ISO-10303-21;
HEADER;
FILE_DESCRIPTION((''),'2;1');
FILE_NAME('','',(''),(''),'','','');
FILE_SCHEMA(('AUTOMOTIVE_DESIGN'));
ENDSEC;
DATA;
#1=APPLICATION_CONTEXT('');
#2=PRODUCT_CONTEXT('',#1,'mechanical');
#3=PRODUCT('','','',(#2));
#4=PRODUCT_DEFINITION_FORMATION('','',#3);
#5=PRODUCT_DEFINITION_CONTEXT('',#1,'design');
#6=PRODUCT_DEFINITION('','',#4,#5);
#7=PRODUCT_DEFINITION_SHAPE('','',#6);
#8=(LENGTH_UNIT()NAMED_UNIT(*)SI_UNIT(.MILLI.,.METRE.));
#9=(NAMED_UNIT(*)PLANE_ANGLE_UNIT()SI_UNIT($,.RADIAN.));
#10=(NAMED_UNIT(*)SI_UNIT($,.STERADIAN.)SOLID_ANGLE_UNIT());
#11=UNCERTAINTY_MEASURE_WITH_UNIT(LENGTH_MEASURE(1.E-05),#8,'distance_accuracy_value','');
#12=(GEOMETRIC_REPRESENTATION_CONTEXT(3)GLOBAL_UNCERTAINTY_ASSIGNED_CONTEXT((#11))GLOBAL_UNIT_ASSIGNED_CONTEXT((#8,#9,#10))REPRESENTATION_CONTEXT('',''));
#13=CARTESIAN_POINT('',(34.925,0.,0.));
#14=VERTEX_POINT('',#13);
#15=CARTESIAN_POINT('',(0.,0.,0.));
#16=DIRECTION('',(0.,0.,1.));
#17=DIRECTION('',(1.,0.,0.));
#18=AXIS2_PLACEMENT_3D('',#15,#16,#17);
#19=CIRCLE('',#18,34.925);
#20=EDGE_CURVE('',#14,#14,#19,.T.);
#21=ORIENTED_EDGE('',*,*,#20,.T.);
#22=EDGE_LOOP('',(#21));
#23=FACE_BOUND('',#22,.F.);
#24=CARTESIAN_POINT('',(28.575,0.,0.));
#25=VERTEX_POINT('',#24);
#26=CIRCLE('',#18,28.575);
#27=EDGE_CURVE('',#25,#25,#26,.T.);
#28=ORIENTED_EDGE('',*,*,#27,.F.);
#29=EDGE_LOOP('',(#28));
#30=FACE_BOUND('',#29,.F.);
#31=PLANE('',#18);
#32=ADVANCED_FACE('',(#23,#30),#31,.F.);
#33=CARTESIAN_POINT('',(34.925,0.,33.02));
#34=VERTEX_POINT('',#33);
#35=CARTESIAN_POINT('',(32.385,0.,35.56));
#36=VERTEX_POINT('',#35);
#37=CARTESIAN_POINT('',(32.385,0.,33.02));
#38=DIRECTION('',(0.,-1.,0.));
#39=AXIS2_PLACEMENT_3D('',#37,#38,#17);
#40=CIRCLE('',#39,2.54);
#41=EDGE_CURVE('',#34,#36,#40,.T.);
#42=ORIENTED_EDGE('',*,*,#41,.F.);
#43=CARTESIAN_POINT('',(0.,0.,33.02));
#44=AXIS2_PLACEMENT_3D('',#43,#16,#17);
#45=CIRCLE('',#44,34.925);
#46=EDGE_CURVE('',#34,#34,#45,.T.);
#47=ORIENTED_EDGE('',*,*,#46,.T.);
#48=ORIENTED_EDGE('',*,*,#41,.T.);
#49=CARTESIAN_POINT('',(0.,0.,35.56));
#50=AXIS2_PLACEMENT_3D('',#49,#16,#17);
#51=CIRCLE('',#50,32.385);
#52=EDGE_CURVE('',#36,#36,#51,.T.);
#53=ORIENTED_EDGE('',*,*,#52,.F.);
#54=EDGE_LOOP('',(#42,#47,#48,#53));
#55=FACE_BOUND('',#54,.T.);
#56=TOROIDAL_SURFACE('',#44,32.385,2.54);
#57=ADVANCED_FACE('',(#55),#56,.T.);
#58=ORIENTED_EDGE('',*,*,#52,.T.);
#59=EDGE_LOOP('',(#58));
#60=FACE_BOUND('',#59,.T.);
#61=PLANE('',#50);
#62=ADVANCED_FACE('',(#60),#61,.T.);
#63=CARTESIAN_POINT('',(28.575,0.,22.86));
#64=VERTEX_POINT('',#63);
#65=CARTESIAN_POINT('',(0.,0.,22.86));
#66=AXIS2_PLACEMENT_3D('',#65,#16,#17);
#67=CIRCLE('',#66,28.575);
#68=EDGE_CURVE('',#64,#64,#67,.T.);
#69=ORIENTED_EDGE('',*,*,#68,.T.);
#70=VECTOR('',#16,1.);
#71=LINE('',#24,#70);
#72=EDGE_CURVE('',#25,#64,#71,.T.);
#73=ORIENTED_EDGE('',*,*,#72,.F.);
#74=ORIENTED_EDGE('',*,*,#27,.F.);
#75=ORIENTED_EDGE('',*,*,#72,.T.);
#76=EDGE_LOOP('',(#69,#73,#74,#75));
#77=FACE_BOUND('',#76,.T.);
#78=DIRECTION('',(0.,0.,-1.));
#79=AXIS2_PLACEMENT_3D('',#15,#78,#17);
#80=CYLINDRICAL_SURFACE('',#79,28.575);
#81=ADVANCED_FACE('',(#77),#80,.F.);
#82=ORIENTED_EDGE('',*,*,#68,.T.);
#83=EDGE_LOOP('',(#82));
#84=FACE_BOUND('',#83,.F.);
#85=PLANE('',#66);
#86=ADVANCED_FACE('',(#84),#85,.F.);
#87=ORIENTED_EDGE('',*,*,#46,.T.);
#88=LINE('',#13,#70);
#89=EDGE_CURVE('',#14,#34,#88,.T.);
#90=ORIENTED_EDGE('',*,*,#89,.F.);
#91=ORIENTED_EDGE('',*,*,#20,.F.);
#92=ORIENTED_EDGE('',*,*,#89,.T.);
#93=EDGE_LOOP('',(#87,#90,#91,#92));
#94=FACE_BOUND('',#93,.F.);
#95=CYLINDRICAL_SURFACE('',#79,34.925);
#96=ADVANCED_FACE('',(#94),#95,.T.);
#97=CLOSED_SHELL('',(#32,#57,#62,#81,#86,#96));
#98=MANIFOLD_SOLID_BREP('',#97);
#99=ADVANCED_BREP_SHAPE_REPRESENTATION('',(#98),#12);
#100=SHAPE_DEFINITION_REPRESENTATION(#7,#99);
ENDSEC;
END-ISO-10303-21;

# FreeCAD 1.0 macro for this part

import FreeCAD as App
import Part
import Sketcher
Q = App.Units.Quantity


def edges_at(feature, points):
    """Names of the edges that pass closest to the given points."""
    edges = feature.Shape.Edges
    near = lambda p: min(range(len(edges)), key=lambda i: edges[i].distToShape(Part.Vertex(*p))[0])
    return sorted({f"Edge{near(p) + 1}" for p in points})

doc = App.newDocument("Part")
body = doc.addObject("PartDesign::Body", "Body")

sketch1 = body.newObject("Sketcher::SketchObject", "Sketch")
sketch1.AttachmentSupport = (doc.getObject("XY_Plane"), [""])
sketch1.MapMode = "FlatFace"
sketch1.addGeometry(Part.Circle(App.Vector(0, 0, 0), App.Vector(0, 0, 1), 35), False)
sketch1.addConstraint(Sketcher.Constraint("Coincident", 0, 3, -1, 1))
sketch1.addConstraint(Sketcher.Constraint("Diameter", 0, Q("2.75 in")))
pad1 = body.newObject("PartDesign::Pad", "Pad")
pad1.Profile = sketch1
pad1.Length = Q("1.4 in")
doc.recompute()

fillet = body.newObject("PartDesign::Fillet", "Fillet")
fillet.Base = (pad1, edges_at(pad1, [(-34.925, 0, 35.56)]))
fillet.Radius = Q("0.1 in")

sketch2 = body.newObject("Sketcher::SketchObject", "Sketch001")
sketch2.AttachmentSupport = (doc.getObject("XY_Plane"), [""])
sketch2.MapMode = "FlatFace"
sketch2.addGeometry(Part.Circle(App.Vector(0, 0, 0), App.Vector(0, 0, 1), 29), False)
sketch2.addConstraint(Sketcher.Constraint("Coincident", 0, 3, -1, 1))
sketch2.addConstraint(Sketcher.Constraint("Diameter", 0, Q("2.25 in")))
pocket1 = body.newObject("PartDesign::Pocket", "Pocket")
pocket1.Profile = sketch2
pocket1.Length = Q("0.9 in")
pocket1.Reversed = True

doc.recompute()
